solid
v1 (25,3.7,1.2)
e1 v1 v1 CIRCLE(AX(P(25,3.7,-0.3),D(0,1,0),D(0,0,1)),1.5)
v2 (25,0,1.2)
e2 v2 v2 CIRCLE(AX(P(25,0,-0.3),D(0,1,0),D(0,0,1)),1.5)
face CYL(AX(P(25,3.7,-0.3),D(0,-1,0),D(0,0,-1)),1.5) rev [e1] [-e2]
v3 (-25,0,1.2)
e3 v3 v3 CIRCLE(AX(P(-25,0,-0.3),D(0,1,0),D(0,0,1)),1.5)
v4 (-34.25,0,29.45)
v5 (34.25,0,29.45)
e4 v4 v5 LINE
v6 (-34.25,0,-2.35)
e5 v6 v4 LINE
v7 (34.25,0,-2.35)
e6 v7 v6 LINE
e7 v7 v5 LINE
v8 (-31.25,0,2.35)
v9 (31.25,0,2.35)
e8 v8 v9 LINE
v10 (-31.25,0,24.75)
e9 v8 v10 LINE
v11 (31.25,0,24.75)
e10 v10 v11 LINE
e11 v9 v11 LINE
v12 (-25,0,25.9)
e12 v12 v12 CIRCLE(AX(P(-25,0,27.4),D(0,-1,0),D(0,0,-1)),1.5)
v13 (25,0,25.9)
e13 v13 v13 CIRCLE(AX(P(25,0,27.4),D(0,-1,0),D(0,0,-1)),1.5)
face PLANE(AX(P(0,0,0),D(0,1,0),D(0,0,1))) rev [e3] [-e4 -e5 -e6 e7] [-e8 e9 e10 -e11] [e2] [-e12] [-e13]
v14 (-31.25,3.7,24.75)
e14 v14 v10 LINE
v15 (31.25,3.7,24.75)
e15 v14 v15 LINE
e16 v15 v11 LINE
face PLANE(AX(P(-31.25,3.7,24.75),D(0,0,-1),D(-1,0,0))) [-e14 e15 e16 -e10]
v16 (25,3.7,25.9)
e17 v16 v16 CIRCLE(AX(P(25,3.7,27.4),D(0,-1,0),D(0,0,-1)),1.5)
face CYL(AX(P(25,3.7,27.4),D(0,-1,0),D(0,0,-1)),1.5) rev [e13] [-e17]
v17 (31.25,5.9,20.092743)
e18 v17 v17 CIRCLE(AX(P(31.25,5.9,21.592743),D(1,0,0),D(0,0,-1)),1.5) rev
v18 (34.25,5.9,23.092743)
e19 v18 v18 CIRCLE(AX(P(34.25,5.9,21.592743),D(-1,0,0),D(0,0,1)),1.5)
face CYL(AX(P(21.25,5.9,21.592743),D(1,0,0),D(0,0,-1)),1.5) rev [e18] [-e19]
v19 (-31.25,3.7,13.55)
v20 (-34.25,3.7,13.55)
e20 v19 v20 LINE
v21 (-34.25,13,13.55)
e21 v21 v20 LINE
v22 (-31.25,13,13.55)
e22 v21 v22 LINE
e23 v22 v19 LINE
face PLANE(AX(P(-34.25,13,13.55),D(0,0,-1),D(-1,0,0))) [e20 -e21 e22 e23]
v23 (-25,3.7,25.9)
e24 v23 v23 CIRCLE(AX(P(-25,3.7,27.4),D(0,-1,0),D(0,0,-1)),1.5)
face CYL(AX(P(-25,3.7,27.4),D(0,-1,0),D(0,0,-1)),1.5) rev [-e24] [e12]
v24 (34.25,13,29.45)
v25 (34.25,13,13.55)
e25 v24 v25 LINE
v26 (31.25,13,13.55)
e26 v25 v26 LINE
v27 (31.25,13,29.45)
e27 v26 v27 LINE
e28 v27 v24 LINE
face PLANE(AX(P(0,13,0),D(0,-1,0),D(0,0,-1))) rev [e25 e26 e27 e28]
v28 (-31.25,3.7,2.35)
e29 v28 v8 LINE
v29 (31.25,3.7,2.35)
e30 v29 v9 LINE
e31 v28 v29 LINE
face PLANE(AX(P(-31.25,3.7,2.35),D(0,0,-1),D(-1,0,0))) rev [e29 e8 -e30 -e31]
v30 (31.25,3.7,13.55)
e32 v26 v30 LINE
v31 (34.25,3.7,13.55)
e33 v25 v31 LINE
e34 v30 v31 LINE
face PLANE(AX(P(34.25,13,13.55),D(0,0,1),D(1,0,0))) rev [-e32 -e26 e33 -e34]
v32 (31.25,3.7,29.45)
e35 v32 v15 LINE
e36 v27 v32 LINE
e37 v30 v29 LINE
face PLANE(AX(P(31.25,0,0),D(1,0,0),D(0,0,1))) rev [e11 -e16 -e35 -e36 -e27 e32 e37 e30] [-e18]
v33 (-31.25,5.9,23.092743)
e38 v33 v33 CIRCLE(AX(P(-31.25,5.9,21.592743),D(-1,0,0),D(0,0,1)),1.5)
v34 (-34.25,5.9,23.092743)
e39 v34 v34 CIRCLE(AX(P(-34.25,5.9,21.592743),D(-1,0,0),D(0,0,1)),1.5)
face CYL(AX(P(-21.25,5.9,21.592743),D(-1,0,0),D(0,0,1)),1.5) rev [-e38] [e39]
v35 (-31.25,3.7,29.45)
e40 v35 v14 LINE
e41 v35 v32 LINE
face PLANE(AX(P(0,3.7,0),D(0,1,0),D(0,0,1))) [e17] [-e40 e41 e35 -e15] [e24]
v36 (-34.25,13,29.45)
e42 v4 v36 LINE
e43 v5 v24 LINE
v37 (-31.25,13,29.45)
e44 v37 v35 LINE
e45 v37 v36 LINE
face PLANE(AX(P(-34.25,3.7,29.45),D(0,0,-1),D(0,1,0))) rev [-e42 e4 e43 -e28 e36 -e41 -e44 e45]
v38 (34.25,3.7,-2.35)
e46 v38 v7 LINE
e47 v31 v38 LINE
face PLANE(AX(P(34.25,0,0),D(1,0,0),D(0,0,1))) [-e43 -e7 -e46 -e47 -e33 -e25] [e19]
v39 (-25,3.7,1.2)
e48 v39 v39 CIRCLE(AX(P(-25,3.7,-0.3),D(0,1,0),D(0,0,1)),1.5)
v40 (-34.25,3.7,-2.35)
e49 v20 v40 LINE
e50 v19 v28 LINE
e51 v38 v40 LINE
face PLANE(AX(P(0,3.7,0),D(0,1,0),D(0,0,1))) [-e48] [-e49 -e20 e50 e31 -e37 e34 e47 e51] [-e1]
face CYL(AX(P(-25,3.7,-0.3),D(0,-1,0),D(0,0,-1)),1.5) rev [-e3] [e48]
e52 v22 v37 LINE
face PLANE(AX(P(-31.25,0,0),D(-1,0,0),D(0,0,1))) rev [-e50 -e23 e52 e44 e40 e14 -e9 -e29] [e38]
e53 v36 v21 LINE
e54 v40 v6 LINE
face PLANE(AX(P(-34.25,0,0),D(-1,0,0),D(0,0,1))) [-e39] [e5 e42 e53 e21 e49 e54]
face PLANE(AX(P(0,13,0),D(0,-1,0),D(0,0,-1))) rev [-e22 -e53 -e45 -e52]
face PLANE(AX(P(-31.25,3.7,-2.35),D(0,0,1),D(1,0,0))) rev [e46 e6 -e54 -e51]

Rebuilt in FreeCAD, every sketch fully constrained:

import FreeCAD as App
import Part
import Sketcher

V = App.Vector


def add_polygon(sketch, points):
    """Adds a closed chain of lines whose ends are joined by coincident constraints."""
    first, n = sketch.GeometryCount, len(points)
    for a, b in zip(points, points[1:] + points[:1]):
        sketch.addGeometry(Part.LineSegment(App.Vector(*a, 0), App.Vector(*b, 0)), False)
    for i in range(n):
        sketch.addConstraint(Sketcher.Constraint("Coincident", first + i, 2, first + (i + 1) % n, 1))

doc = App.newDocument("Part")
body = doc.addObject("PartDesign::Body", "Body")

# Sketch on XZ plane
sketch1 = body.newObject("Sketcher::SketchObject", "Sketch")
sketch1.AttachmentSupport = (doc.getObject("XZ_Plane"), [""])
sketch1.MapMode = "FlatFace"
add_polygon(sketch1, [(-31.25, -2.35), (-31.25, 2.35), (31.25, 2.35), (31.25, -2.35)])  # lines 0-3
sketch1.addGeometry(Part.Circle(V(-25, -0.3, 0), V(0, 0, 1), 1.5), False)  # 4
sketch1.addGeometry(Part.Circle(V(25, -0.3, 0), V(0, 0, 1), 1.5), False)  # 5
sketch1.addConstraint(Sketcher.Constraint("Vertical", 0))
sketch1.addConstraint(Sketcher.Constraint("Horizontal", 1))
sketch1.addConstraint(Sketcher.Constraint("Vertical", 2))
sketch1.addConstraint(Sketcher.Constraint("Horizontal", 3))
sketch1.addConstraint(Sketcher.Constraint("Equal", 4, 5))
sketch1.addConstraint(Sketcher.Constraint("Symmetric", 0, 2, 2, 2, -1, 1))
sketch1.addConstraint(Sketcher.Constraint("Symmetric", 4, 3, 5, 3, -2))
sketch1.addConstraint(Sketcher.Constraint("Diameter", 4, 3.0))
sketch1.addConstraint(Sketcher.Constraint("DistanceX", 1, 1, 1, 2, 62.5))
sketch1.addConstraint(Sketcher.Constraint("DistanceY", 0, 1, 0, 2, 4.7))
sketch1.addConstraint(Sketcher.Constraint("DistanceX", 4, 3, -1, 1, 25.0))
sketch1.addConstraint(Sketcher.Constraint("DistanceY", 4, 3, -1, 1, 0.3))
pad1 = body.newObject("PartDesign::Pad", "Pad")
pad1.Profile = sketch1
pad1.Length = 3.7
pad1.Reversed = True

# Sketch on YZ plane
sketch2 = body.newObject("Sketcher::SketchObject", "Sketch001")
sketch2.AttachmentSupport = (doc.getObject("YZ_Plane"), [""])
sketch2.MapMode = "FlatFace"
sketch2.AttachmentOffset = App.Placement(V(0, 0, -31.25), App.Rotation())
add_polygon(sketch2, [(3.7, -2.35), (0, -2.35), (0, 29.45), (3.7, 29.45)])  # lines 0-3
sketch2.addConstraint(Sketcher.Constraint("Horizontal", 0))
sketch2.addConstraint(Sketcher.Constraint("Vertical", 1))
sketch2.addConstraint(Sketcher.Constraint("Horizontal", 2))
sketch2.addConstraint(Sketcher.Constraint("Vertical", 3))
sketch2.addConstraint(Sketcher.Constraint("PointOnObject", 0, 2, -2))
sketch2.addConstraint(Sketcher.Constraint("DistanceX", 0, 2, 0, 1, 3.7))
sketch2.addConstraint(Sketcher.Constraint("DistanceY", 1, 1, 1, 2, 31.8))
sketch2.addConstraint(Sketcher.Constraint("DistanceY", 0, 2, -1, 1, 2.35))
pad2 = body.newObject("PartDesign::Pad", "Pad001")
pad2.Profile = sketch2
pad2.Length = 3
pad2.Reversed = True
doc.recompute()

mirrored = body.newObject("PartDesign::Mirrored", "Mirrored")
mirrored.Originals = [pad2]
mirrored.MirrorPlane = (doc.getObject("YZ_Plane"), [""])
body.Tip = mirrored
doc.recompute()

datumplane = body.newObject("PartDesign::Plane", "DatumPlane")
datumplane.AttachmentSupport = (doc.getObject("XY_Plane"), [""])
datumplane.MapMode = "FlatFace"
datumplane.AttachmentOffset = App.Placement(V(0, 0, 13.55), App.Rotation())
mirrored2 = body.newObject("PartDesign::Mirrored", "Mirrored001")
mirrored2.Originals = [pad1]
mirrored2.MirrorPlane = (datumplane, [""])
body.Tip = mirrored2

# Sketch on XZ plane
sketch3 = body.newObject("Sketcher::SketchObject", "Sketch002")
sketch3.AttachmentSupport = (doc.getObject("XZ_Plane"), [""])
sketch3.MapMode = "FlatFace"
add_polygon(sketch3, [(-34.25, 29.45), (-34.25, 13.55), (-31.25, 13.55), (-31.25, 29.45)])  # lines 0-3
sketch3.addConstraint(Sketcher.Constraint("Vertical", 0))
sketch3.addConstraint(Sketcher.Constraint("Horizontal", 1))
sketch3.addConstraint(Sketcher.Constraint("Vertical", 2))
sketch3.addConstraint(Sketcher.Constraint("Horizontal", 3))
sketch3.addConstraint(Sketcher.Constraint("DistanceX", 1, 1, 1, 2, 3.0))
sketch3.addConstraint(Sketcher.Constraint("DistanceY", 0, 2, 0, 1, 15.9))
sketch3.addConstraint(Sketcher.Constraint("DistanceX", 0, 2, -1, 1, 34.25))
sketch3.addConstraint(Sketcher.Constraint("DistanceY", -1, 1, 0, 2, 13.55))
pad3 = body.newObject("PartDesign::Pad", "Pad002")
pad3.Profile = sketch3
pad3.Length = 13
pad3.Reversed = True

# Sketch on YZ plane
sketch4 = body.newObject("Sketcher::SketchObject", "Sketch003")
sketch4.AttachmentSupport = (doc.getObject("YZ_Plane"), [""])
sketch4.MapMode = "FlatFace"
sketch4.AttachmentOffset = App.Placement(V(0, 0, -34.25), App.Rotation())
sketch4.addGeometry(Part.Circle(V(5.9, 21.592743, 0), V(0, 0, 1), 1.5), False)
sketch4.addConstraint(Sketcher.Constraint("Diameter", 0, 3.0))
sketch4.addConstraint(Sketcher.Constraint("DistanceX", -1, 1, 0, 3, 5.9))
sketch4.addConstraint(Sketcher.Constraint("DistanceY", -1, 1, 0, 3, 21.592743))
pocket1 = body.newObject("PartDesign::Pocket", "Pocket")
pocket1.Profile = sketch4
pocket1.Length = 13
pocket1.Reversed = True
doc.recompute()

mirrored3 = body.newObject("PartDesign::Mirrored", "Mirrored002")
mirrored3.Originals = [pad3, pocket1]
mirrored3.MirrorPlane = (doc.getObject("YZ_Plane"), [""])
body.Tip = mirrored3

doc.recompute()
